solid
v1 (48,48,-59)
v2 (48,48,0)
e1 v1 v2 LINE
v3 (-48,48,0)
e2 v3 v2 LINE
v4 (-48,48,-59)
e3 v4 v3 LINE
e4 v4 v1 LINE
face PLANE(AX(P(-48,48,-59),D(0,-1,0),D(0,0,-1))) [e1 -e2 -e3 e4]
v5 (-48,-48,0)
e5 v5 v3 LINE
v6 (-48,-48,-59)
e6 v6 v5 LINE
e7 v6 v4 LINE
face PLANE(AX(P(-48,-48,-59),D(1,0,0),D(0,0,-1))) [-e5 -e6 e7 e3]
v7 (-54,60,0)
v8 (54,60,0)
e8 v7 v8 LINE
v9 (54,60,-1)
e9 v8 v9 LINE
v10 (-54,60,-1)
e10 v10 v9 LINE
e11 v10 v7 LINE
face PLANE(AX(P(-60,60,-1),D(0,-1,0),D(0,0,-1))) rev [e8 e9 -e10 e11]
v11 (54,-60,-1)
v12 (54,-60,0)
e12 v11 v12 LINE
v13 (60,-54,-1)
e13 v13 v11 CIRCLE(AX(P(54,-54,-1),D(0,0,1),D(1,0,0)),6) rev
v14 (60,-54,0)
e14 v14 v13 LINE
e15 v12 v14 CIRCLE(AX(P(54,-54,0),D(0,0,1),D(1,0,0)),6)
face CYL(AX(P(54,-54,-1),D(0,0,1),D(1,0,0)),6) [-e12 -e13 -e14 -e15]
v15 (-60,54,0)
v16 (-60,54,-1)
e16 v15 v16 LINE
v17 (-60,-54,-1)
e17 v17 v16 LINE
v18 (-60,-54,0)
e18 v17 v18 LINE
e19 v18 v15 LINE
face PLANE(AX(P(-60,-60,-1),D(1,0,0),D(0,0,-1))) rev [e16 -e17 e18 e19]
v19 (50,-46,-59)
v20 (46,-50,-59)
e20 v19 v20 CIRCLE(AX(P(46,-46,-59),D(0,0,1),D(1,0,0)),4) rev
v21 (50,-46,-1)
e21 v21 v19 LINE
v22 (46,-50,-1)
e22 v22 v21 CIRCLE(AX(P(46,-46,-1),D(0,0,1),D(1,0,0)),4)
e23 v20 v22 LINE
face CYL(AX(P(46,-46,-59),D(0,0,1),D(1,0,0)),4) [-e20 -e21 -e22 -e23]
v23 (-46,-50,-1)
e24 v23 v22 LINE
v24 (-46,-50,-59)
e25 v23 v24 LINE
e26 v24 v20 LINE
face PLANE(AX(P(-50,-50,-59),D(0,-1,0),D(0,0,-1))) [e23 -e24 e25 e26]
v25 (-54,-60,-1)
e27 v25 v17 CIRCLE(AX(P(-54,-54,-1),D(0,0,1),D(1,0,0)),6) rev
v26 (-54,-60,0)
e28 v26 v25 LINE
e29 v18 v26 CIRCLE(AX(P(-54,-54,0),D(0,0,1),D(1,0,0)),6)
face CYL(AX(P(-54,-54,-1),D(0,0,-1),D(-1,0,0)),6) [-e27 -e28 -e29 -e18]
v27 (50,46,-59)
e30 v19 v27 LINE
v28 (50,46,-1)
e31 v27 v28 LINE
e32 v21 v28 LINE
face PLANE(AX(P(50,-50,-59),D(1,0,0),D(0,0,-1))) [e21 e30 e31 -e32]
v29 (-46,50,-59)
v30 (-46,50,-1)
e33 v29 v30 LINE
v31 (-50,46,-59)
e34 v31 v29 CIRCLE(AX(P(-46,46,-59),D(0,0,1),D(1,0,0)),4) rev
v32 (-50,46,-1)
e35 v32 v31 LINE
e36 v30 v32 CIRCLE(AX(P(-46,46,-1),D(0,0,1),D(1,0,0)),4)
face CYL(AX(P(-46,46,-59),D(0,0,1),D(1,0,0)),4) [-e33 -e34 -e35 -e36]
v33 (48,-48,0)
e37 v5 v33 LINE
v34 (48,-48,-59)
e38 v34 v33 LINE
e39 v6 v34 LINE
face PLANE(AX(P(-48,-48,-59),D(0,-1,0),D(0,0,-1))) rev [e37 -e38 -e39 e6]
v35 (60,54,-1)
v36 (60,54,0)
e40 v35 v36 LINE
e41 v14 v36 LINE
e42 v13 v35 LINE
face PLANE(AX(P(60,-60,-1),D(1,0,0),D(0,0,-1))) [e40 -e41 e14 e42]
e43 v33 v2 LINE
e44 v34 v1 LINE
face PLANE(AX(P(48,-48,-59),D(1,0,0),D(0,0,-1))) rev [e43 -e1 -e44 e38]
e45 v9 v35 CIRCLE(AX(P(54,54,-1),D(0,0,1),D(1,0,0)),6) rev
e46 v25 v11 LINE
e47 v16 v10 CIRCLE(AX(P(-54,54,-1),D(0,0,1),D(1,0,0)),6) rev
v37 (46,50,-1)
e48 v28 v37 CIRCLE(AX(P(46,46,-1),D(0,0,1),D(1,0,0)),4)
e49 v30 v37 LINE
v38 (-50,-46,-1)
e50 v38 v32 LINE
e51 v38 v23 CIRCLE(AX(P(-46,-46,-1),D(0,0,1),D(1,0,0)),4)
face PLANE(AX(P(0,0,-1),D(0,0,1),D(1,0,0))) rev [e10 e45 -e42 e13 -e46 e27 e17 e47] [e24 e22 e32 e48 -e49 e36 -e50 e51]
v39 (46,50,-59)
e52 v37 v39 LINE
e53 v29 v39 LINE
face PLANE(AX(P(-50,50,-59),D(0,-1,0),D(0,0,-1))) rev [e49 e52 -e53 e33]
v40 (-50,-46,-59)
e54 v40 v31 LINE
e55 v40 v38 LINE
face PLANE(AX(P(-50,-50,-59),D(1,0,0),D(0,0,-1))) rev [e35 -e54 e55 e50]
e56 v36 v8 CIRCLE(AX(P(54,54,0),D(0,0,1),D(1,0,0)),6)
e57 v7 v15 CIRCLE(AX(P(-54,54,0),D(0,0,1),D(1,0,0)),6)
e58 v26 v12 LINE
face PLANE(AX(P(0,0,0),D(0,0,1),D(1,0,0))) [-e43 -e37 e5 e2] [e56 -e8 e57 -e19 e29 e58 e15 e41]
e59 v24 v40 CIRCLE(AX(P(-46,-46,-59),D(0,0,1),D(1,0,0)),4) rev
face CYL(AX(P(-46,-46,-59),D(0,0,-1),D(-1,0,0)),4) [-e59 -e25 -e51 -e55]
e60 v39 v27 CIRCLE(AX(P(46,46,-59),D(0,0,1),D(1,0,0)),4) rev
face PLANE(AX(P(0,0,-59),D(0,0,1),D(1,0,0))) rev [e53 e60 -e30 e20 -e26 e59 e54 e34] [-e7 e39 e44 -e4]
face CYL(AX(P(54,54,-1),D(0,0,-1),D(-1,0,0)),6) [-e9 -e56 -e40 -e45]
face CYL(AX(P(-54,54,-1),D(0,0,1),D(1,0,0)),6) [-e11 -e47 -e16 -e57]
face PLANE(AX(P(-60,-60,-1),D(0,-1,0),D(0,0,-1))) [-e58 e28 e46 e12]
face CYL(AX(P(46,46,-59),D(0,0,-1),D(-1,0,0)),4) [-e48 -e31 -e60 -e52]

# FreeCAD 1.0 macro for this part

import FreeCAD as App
import Part
import Sketcher

V = App.Vector


def edges_at(feature, points):
    """Names of the edges that pass closest to the given points."""
    edges = feature.Shape.Edges
    near = lambda p: min(range(len(edges)), key=lambda i: edges[i].distToShape(Part.Vertex(*p))[0])
    return sorted({f"Edge{near(p) + 1}" for p in points})

doc = App.newDocument("Part")
body = doc.addObject("PartDesign::Body", "Body")

# Sketch on XY plane
sketch1 = doc.addObject("Sketcher::SketchObject", "Sketch")
body.addObject(sketch1)
sketch1.AttachmentSupport = (doc.XY_Plane, [""])
sketch1.MapMode = "FlatFace"
sketch1.addGeometry(Part.LineSegment(V(-50, 50, 0), V(-50, -50, 0)), False)
sketch1.addGeometry(Part.LineSegment(V(-50, -50, 0), V(50, -50, 0)), False)
sketch1.addGeometry(Part.LineSegment(V(50, -50, 0), V(50, 50, 0)), False)
sketch1.addGeometry(Part.LineSegment(V(50, 50, 0), V(-50, 50, 0)), False)
sketch1.addGeometry(Part.LineSegment(V(48, -48, 0), V(-48, -48, 0)), False)
sketch1.addGeometry(Part.LineSegment(V(-48, -48, 0), V(-48, 48, 0)), False)
sketch1.addGeometry(Part.LineSegment(V(-48, 48, 0), V(48, 48, 0)), False)
sketch1.addGeometry(Part.LineSegment(V(48, 48, 0), V(48, -48, 0)), False)
sketch1.addConstraint(Sketcher.Constraint("Coincident", 0, 2, 1, 1))
sketch1.addConstraint(Sketcher.Constraint("Coincident", 1, 2, 2, 1))
sketch1.addConstraint(Sketcher.Constraint("Coincident", 2, 2, 3, 1))
sketch1.addConstraint(Sketcher.Constraint("Coincident", 3, 2, 0, 1))
sketch1.addConstraint(Sketcher.Constraint("Coincident", 4, 2, 5, 1))
sketch1.addConstraint(Sketcher.Constraint("Coincident", 5, 2, 6, 1))
sketch1.addConstraint(Sketcher.Constraint("Coincident", 6, 2, 7, 1))
sketch1.addConstraint(Sketcher.Constraint("Coincident", 7, 2, 4, 1))
sketch1.addConstraint(Sketcher.Constraint("Vertical", 0))
sketch1.addConstraint(Sketcher.Constraint("Horizontal", 1))
sketch1.addConstraint(Sketcher.Constraint("Vertical", 2))
sketch1.addConstraint(Sketcher.Constraint("Horizontal", 3))
sketch1.addConstraint(Sketcher.Constraint("Horizontal", 4))
sketch1.addConstraint(Sketcher.Constraint("Vertical", 5))
sketch1.addConstraint(Sketcher.Constraint("Horizontal", 6))
sketch1.addConstraint(Sketcher.Constraint("Vertical", 7))
sketch1.addConstraint(Sketcher.Constraint("Symmetric", 0, 2, 2, 2, -1, 1))
sketch1.addConstraint(Sketcher.Constraint("Symmetric", 4, 2, 6, 2, -1, 1))
sketch1.addConstraint(Sketcher.Constraint("Equal", 3, 0))
sketch1.addConstraint(Sketcher.Constraint("Equal", 6, 5))
sketch1.addConstraint(Sketcher.Constraint("DistanceX", 1, 1, 1, 2, 100.0))
sketch1.addConstraint(Sketcher.Constraint("DistanceX", 4, 2, 4, 1, 96.0))
pad1 = doc.addObject("PartDesign::Pad", "Pad")
body.addObject(pad1)
pad1.Profile = sketch1
pad1.Length = 59
pad1.Reversed = True

# Sketch on XY plane
sketch2 = doc.addObject("Sketcher::SketchObject", "Sketch001")
body.addObject(sketch2)
sketch2.AttachmentSupport = (doc.XY_Plane, [""])
sketch2.MapMode = "FlatFace"
sketch2.addGeometry(Part.LineSegment(V(-60, 60, 0), V(-60, -60, 0)), False)
sketch2.addGeometry(Part.LineSegment(V(-60, -60, 0), V(60, -60, 0)), False)
sketch2.addGeometry(Part.LineSegment(V(60, -60, 0), V(60, 60, 0)), False)
sketch2.addGeometry(Part.LineSegment(V(60, 60, 0), V(-60, 60, 0)), False)
sketch2.addGeometry(Part.LineSegment(V(50, -50, 0), V(-50, -50, 0)), False)
sketch2.addGeometry(Part.LineSegment(V(-50, -50, 0), V(-50, 50, 0)), False)
sketch2.addGeometry(Part.LineSegment(V(-50, 50, 0), V(50, 50, 0)), False)
sketch2.addGeometry(Part.LineSegment(V(50, 50, 0), V(50, -50, 0)), False)
sketch2.addConstraint(Sketcher.Constraint("Coincident", 0, 2, 1, 1))
sketch2.addConstraint(Sketcher.Constraint("Coincident", 1, 2, 2, 1))
sketch2.addConstraint(Sketcher.Constraint("Coincident", 2, 2, 3, 1))
sketch2.addConstraint(Sketcher.Constraint("Coincident", 3, 2, 0, 1))
sketch2.addConstraint(Sketcher.Constraint("Coincident", 4, 2, 5, 1))
sketch2.addConstraint(Sketcher.Constraint("Coincident", 5, 2, 6, 1))
sketch2.addConstraint(Sketcher.Constraint("Coincident", 6, 2, 7, 1))
sketch2.addConstraint(Sketcher.Constraint("Coincident", 7, 2, 4, 1))
sketch2.addConstraint(Sketcher.Constraint("Vertical", 0))
sketch2.addConstraint(Sketcher.Constraint("Horizontal", 1))
sketch2.addConstraint(Sketcher.Constraint("Vertical", 2))
sketch2.addConstraint(Sketcher.Constraint("Horizontal", 3))
sketch2.addConstraint(Sketcher.Constraint("Horizontal", 4))
sketch2.addConstraint(Sketcher.Constraint("Vertical", 5))
sketch2.addConstraint(Sketcher.Constraint("Horizontal", 6))
sketch2.addConstraint(Sketcher.Constraint("Vertical", 7))
sketch2.addConstraint(Sketcher.Constraint("Symmetric", 0, 2, 2, 2, -1, 1))
sketch2.addConstraint(Sketcher.Constraint("Symmetric", 4, 2, 6, 2, -1, 1))
sketch2.addConstraint(Sketcher.Constraint("Equal", 3, 0))
sketch2.addConstraint(Sketcher.Constraint("Equal", 6, 5))
sketch2.addConstraint(Sketcher.Constraint("DistanceX", 1, 1, 1, 2, 120.0))
sketch2.addConstraint(Sketcher.Constraint("DistanceX", 4, 2, 4, 1, 100.0))
pad2 = doc.addObject("PartDesign::Pad", "Pad001")
body.addObject(pad2)
pad2.Profile = sketch2
pad2.Length = 1
pad2.Reversed = True
doc.recompute()

fillet = doc.addObject("PartDesign::Fillet", "Fillet")
body.addObject(fillet)
fillet.Base = (pad2, edges_at(pad2, [
    (-50, -50, -30),
    (-50, 50, -30),
    (50, 50, -30),
    (50, -50, -30),
]))
fillet.Radius = 4
doc.recompute()

fillet2 = doc.addObject("PartDesign::Fillet", "Fillet001")
body.addObject(fillet2)
fillet2.Base = (fillet, edges_at(fillet, [
    (60, -60, -0.5),
    (-60, -60, -0.5),
    (-60, 60, -0.5),
    (60, 60, -0.5),
]))
fillet2.Radius = 6

doc.recompute()
